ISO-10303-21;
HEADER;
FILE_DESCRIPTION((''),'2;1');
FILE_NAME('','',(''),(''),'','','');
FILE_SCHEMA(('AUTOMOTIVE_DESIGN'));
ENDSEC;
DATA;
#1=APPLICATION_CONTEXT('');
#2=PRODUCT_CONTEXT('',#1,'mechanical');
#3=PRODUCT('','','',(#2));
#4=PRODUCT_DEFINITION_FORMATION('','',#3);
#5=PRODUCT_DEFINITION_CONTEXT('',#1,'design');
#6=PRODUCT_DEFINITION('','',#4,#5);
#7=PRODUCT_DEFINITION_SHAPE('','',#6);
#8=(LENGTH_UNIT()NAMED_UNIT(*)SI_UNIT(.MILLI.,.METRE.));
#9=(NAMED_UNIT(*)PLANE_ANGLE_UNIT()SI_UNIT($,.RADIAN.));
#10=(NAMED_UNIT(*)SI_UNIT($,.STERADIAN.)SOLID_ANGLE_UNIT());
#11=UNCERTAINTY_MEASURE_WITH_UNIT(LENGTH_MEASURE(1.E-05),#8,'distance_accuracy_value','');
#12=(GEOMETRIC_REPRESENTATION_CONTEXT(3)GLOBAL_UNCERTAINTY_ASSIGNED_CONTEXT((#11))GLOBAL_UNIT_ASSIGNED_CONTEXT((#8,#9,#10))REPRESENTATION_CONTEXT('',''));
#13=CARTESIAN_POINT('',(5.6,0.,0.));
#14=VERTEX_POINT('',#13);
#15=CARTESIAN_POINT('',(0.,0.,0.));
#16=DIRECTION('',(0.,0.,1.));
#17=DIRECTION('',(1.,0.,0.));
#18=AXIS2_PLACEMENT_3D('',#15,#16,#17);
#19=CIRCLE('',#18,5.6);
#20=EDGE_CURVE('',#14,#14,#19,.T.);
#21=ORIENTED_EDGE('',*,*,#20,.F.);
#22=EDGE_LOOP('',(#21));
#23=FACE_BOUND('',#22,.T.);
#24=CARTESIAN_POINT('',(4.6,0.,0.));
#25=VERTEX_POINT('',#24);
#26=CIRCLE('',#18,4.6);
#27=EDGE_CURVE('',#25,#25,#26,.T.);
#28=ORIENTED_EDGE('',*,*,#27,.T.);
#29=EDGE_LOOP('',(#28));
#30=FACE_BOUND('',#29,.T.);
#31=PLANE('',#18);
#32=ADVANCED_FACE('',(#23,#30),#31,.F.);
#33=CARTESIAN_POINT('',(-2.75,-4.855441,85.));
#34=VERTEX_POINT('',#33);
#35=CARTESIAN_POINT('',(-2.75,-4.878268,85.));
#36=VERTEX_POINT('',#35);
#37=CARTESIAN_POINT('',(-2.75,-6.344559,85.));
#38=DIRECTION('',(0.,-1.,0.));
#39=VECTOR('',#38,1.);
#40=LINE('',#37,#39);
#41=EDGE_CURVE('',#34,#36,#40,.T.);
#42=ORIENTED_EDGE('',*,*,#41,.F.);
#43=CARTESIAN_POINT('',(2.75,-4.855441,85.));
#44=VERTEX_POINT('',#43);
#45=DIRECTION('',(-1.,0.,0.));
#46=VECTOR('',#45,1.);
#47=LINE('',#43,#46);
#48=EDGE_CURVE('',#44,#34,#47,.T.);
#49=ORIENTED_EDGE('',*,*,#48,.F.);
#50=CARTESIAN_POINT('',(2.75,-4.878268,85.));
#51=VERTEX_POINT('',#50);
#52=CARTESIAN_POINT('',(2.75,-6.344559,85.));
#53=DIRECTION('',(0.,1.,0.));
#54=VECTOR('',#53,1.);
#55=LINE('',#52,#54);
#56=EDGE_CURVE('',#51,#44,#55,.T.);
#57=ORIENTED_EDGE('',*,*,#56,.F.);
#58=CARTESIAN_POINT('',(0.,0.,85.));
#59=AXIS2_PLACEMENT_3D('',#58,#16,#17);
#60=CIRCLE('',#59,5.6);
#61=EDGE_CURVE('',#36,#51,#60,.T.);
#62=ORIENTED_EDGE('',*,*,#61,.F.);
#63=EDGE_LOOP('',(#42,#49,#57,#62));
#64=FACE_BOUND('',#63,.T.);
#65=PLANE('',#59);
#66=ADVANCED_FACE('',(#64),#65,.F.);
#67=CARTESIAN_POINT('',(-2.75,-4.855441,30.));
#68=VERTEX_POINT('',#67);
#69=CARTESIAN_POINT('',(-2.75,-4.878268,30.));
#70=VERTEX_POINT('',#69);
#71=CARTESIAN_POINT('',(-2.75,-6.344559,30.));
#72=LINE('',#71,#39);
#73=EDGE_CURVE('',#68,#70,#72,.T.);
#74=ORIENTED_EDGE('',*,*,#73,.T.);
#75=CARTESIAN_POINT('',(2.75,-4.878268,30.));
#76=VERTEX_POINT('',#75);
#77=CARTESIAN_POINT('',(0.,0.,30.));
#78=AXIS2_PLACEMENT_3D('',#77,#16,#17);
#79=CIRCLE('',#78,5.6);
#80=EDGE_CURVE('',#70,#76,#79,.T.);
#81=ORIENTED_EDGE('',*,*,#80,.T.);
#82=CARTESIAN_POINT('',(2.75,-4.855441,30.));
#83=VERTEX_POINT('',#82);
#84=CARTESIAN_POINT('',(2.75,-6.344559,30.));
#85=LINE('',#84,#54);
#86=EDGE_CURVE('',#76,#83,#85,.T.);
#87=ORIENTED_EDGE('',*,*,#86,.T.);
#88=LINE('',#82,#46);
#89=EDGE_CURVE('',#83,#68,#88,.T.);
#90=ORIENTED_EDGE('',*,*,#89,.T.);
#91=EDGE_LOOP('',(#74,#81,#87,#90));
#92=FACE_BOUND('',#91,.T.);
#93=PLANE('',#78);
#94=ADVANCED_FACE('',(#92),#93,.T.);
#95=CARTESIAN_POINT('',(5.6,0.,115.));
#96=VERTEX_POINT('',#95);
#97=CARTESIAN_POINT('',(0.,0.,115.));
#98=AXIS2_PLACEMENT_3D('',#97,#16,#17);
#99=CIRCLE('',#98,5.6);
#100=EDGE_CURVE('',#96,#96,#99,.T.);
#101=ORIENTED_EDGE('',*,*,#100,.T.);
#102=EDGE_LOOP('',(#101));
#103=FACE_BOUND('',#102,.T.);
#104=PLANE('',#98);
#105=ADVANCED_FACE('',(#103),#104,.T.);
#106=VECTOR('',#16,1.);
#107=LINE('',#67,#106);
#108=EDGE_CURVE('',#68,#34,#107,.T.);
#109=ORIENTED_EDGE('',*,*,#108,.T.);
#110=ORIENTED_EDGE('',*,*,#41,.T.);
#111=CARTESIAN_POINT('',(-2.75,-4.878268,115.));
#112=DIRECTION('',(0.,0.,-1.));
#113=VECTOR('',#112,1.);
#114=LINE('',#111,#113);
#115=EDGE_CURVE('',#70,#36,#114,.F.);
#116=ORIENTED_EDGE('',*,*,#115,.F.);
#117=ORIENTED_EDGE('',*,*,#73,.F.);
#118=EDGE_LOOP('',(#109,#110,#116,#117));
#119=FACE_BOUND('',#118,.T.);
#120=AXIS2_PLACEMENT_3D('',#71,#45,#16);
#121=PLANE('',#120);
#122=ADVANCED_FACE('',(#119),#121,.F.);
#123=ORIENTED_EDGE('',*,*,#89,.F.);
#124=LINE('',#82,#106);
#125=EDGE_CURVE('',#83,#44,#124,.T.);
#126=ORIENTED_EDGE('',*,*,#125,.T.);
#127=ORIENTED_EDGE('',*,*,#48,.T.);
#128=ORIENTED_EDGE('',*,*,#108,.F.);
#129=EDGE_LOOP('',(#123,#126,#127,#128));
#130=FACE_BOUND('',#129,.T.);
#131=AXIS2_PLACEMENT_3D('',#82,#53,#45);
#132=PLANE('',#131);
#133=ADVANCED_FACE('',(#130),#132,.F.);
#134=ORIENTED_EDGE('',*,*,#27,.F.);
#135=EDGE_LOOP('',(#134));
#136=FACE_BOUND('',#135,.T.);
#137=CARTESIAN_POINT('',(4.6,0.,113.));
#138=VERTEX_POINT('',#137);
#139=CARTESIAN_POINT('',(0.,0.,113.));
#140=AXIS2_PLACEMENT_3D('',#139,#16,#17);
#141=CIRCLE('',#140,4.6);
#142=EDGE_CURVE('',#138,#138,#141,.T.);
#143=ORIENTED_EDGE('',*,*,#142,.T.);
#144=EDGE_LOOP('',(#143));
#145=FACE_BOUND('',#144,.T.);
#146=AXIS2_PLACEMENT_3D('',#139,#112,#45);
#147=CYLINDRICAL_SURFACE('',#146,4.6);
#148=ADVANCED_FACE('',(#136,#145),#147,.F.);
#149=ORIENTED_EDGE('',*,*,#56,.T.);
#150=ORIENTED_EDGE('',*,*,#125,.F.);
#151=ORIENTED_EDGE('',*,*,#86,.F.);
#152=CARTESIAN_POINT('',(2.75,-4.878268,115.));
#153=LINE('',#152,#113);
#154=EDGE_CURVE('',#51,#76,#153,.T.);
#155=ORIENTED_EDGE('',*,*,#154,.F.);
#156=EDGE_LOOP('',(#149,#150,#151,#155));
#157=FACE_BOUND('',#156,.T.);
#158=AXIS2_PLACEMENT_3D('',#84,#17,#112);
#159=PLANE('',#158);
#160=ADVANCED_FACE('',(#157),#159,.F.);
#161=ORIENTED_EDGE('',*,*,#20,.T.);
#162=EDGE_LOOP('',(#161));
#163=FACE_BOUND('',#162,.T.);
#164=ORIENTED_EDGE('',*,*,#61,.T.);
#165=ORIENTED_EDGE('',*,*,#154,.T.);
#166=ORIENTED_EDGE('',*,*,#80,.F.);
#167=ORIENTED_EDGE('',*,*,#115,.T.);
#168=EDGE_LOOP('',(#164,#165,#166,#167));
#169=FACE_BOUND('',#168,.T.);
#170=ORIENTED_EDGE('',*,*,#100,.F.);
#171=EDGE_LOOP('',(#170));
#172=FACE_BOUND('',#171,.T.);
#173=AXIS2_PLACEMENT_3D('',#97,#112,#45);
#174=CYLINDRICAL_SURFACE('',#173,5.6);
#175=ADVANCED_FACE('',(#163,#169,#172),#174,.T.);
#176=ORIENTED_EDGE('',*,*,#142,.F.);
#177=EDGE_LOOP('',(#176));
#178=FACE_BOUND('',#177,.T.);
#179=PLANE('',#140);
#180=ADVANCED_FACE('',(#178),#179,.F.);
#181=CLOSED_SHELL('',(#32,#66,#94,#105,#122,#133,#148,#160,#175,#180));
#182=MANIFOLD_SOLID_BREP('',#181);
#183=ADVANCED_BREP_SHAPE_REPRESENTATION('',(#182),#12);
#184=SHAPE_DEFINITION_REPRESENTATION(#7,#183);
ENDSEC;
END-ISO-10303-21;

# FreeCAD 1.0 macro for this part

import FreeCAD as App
import Part
import Sketcher

V = App.Vector
Q = App.Units.Quantity


def add_polygon(sketch, points):
    """Adds a closed chain of lines whose ends are joined by coincident constraints."""
    first, n = sketch.GeometryCount, len(points)
    for a, b in zip(points, points[1:] + points[:1]):
        sketch.addGeometry(Part.LineSegment(App.Vector(*a, 0), App.Vector(*b, 0)), False)
    for i in range(n):
        sketch.addConstraint(Sketcher.Constraint("Coincident", first + i, 2, first + (i + 1) % n, 1))

doc = App.newDocument("Part")
body = doc.addObject("PartDesign::Body", "Body")

# Sketch on XY plane
sketch1 = doc.addObject("Sketcher::SketchObject", "Sketch")
body.addObject(sketch1)
sketch1.AttachmentSupport = (doc.XY_Plane, [""])
sketch1.MapMode = "FlatFace"
sketch1.addGeometry(Part.Circle(V(0, 0, 0), V(0, 0, 1), 6), False)
sketch1.addConstraint([
    Sketcher.Constraint("Coincident", 0, 3, -1, 1),
    Sketcher.Constraint("Diameter", 0, Q("11.2 mm")),
])
pad1 = doc.addObject("PartDesign::Pad", "Pad")
body.addObject(pad1)
pad1.Profile = sketch1
pad1.Length = 115

# Sketch on XY plane
sketch2 = doc.addObject("Sketcher::SketchObject", "Sketch001")
body.addObject(sketch2)
sketch2.AttachmentSupport = (doc.XY_Plane, [""])
sketch2.MapMode = "FlatFace"
sketch2.addGeometry(Part.Circle(V(0, 0, 0), V(0, 0, 1), 4.6), False)
sketch2.addConstraint([
    Sketcher.Constraint("Coincident", 0, 3, -1, 1),
    Sketcher.Constraint("Diameter", 0, Q("9.2 mm")),
])
pocket1 = doc.addObject("PartDesign::Pocket", "Pocket")
body.addObject(pocket1)
pocket1.Profile = sketch2
pocket1.Length = 113
pocket1.Reversed = True

# Sketch on XY plane
sketch3 = doc.addObject("Sketcher::SketchObject", "Sketch002")
body.addObject(sketch3)
sketch3.AttachmentSupport = (doc.XY_Plane, [""])
sketch3.MapMode = "FlatFace"
sketch3.AttachmentOffset = App.Placement(V(0, 0, 85), App.Rotation())
add_polygon(sketch3, [(-2.8, -4.9), (-2.8, -6.3), (2.8, -6.3), (2.8, -4.9)])  # lines 0-3
sketch3.addConstraint([
    Sketcher.Constraint("Vertical", 0),
    Sketcher.Constraint("Horizontal", 1),
    Sketcher.Constraint("Vertical", 2),
    Sketcher.Constraint("Horizontal", 3),
    Sketcher.Constraint("DistanceX", 1, 1, 1, 2, Q("5.5 mm")),
    Sketcher.Constraint("DistanceX", 0, 2, -1, 1, Q("2.75 mm")),
    Sketcher.Constraint("DistanceY", 0, 2, 0, 1, Q("1.489118 mm")),
    Sketcher.Constraint("DistanceY", 0, 2, -1, 1, Q("6.344559 mm")),
])
pocket2 = doc.addObject("PartDesign::Pocket", "Pocket001")
body.addObject(pocket2)
pocket2.Profile = sketch3
pocket2.Length = 55

doc.recompute()
